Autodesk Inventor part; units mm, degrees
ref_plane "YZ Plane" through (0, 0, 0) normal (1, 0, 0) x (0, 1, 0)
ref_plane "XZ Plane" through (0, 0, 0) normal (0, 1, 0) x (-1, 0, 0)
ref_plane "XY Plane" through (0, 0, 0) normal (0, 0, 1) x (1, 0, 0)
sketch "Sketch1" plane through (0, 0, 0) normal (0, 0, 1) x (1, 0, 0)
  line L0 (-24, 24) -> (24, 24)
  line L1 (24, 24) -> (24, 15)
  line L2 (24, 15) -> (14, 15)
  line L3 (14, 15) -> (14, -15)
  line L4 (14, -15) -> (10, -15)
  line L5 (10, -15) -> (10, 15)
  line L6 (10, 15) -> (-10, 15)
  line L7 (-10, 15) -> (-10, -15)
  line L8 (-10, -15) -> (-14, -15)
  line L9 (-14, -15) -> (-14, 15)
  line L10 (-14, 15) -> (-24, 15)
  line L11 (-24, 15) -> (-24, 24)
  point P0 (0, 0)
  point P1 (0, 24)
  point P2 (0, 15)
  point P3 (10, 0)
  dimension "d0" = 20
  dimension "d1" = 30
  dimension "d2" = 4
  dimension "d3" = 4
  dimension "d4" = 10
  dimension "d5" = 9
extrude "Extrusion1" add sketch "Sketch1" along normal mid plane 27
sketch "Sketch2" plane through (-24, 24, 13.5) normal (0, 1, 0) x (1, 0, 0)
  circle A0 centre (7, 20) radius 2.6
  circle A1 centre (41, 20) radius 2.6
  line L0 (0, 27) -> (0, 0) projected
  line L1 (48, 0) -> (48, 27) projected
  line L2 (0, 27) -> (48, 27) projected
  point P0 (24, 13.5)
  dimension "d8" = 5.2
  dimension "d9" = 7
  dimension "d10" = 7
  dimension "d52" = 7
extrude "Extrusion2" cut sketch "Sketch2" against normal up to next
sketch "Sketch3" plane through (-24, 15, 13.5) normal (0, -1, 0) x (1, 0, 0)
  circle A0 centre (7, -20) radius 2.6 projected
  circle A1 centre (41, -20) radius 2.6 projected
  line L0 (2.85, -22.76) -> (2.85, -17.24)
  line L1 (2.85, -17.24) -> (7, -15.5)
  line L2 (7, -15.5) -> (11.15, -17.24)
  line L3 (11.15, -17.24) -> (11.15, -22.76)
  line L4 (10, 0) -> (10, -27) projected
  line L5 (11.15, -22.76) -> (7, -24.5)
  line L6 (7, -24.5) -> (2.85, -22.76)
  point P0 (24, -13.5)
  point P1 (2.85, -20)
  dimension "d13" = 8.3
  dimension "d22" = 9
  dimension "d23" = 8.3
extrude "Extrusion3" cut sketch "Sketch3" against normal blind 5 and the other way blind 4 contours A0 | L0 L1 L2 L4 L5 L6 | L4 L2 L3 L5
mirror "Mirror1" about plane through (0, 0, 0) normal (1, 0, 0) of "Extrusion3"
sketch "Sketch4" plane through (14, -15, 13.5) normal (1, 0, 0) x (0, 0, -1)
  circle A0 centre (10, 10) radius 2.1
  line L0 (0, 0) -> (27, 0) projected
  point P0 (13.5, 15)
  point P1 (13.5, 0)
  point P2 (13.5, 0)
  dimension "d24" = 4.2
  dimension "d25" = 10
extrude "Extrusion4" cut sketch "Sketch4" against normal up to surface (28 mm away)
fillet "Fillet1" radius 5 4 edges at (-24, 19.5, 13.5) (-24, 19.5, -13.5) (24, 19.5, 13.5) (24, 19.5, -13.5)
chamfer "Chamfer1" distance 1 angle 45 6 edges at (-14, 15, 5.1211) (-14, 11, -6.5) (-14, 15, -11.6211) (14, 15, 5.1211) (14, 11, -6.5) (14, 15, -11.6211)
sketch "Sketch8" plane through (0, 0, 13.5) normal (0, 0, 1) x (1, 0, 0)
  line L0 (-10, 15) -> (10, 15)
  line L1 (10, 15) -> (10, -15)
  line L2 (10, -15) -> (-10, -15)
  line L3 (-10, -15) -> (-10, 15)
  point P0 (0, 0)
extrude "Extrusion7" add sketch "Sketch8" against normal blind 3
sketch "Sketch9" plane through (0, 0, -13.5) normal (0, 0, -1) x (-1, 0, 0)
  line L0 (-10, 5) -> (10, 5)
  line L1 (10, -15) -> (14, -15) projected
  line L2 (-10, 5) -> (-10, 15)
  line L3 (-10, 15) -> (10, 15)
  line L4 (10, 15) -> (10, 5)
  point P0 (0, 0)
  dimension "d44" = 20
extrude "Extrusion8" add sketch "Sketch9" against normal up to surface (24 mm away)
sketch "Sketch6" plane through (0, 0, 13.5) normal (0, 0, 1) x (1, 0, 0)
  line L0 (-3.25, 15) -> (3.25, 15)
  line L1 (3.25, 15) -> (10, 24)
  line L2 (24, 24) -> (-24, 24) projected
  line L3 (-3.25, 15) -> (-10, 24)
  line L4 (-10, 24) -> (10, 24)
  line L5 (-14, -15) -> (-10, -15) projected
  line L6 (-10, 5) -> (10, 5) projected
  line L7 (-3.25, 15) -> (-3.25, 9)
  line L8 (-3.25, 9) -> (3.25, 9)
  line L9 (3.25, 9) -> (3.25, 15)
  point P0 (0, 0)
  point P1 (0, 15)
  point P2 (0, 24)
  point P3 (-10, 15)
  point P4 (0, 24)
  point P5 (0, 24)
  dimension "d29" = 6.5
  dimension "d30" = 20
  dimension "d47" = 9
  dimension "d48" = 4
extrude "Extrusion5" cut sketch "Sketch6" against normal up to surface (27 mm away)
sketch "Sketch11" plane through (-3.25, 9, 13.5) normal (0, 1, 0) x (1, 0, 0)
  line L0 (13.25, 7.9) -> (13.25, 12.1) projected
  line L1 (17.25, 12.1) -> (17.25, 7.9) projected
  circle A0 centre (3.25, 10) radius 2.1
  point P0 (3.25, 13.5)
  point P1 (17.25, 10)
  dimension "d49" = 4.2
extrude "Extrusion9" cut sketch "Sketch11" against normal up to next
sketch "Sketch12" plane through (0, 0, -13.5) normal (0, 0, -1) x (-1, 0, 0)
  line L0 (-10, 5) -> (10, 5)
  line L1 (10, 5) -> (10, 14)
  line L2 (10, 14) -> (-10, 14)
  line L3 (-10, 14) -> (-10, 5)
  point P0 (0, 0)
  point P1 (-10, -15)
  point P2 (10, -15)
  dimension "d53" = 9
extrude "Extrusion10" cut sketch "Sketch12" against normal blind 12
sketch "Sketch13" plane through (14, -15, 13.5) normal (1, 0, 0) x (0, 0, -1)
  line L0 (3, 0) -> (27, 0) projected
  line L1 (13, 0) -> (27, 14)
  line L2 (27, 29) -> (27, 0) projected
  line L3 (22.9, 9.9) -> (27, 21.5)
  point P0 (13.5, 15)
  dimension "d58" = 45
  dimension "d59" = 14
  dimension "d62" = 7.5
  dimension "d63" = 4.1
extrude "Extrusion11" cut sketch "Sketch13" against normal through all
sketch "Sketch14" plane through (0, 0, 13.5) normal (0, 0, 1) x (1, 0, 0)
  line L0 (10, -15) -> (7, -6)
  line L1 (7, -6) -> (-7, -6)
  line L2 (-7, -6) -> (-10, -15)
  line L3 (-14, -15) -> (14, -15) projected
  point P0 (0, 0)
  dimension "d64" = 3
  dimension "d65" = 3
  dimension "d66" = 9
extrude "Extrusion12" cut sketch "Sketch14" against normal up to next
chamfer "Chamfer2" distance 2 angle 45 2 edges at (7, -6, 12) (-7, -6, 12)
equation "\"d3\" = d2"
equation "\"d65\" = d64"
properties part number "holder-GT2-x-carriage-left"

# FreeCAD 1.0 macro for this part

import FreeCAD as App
import Part
import Sketcher
Q = App.Units.Quantity


def edges_at(feature, points):
    """Names of the edges that pass closest to the given points."""
    edges = feature.Shape.Edges
    near = lambda p: min(range(len(edges)), key=lambda i: edges[i].distToShape(Part.Vertex(*p))[0])
    return sorted({f"Edge{near(p) + 1}" for p in points})


def add_polygon(sketch, points):
    """Adds a closed chain of lines whose ends are joined by coincident constraints."""
    first, n = sketch.GeometryCount, len(points)
    for a, b in zip(points, points[1:] + points[:1]):
        sketch.addGeometry(Part.LineSegment(App.Vector(*a, 0), App.Vector(*b, 0)), False)
    for i in range(n):
        sketch.addConstraint(Sketcher.Constraint("Coincident", first + i, 2, first + (i + 1) % n, 1))

doc = App.newDocument("Part")
params = doc.addObject("Spreadsheet::Sheet", "Params")
for row, (alias, value) in enumerate([
    ("sketch1_width", "10 mm"),
    ("sketch1_width2", "4 mm"),
    ("sketch1_width3", "20 mm"),
    ("sketch1_height", "9 mm"),
    ("sketch1_height2", "30 mm"),
    ("pad1_length", "27 mm"),
    ("sketch2_diameter", "5.2 mm"),
    ("sketch3_length", "4.5 mm"),
    ("pocket2_length", "5 mm"),
    ("pocket2_length2", "4 mm"),
    ("sketch4_diameter", "4.2 mm"),
    ("pocket3_length", "28 mm"),
    ("fillet_radius", "5 mm"),
    ("chamfer_size", "1 mm"),
    ("sketch5_width", "20 mm"),
    ("sketch5_height", "30 mm"),
    ("pad2_length", "3 mm"),
    ("sketch6_width", "20 mm"),
    ("sketch6_height", "10 mm"),
    ("pad3_length", "24 mm"),
    ("sketch7_width", "20 mm"),
    ("sketch7_width2", "6.5 mm"),
    ("sketch7_height", "6 mm"),
    ("pocket4_length", "27 mm"),
    ("sketch8_diameter", "4.2 mm"),
    ("sketch9_height", "9 mm"),
    ("sketch9_width", "20 mm"),
    ("pocket6_length", "12 mm"),
    ("sketch10_height", "14 mm"),
    ("sketch10_width", "21.5 mm"),
    ("sketch11_width", "20 mm"),
    ("chamfer2_size", "2 mm"),
], start=1):
    params.set(f"A{row}", alias)
    params.set(f"B{row}", "=" + value)
    params.setAlias(f"B{row}", alias)

body = doc.addObject("PartDesign::Body", "Body")

sketch1 = doc.addObject("Sketcher::SketchObject", "Sketch")
body.addObject(sketch1)
sketch1.AttachmentSupport = (doc.XY_Plane, [""])
sketch1.MapMode = "FlatFace"
add_polygon(sketch1, [(24, 24), (-24, 24), (-24, 15), (-14, 15), (-14, -15), (-10, -15), (-10, 15), (10, 15), (10, -15), (14, -15), (14, 15), (24, 15)])
sketch1.addConstraint(Sketcher.Constraint("Horizontal", 0))
sketch1.addConstraint(Sketcher.Constraint("Vertical", 1))
sketch1.addConstraint(Sketcher.Constraint("Horizontal", 2))
sketch1.addConstraint(Sketcher.Constraint("Vertical", 3))
sketch1.addConstraint(Sketcher.Constraint("Horizontal", 4))
sketch1.addConstraint(Sketcher.Constraint("Vertical", 5))
sketch1.addConstraint(Sketcher.Constraint("Horizontal", 6))
sketch1.addConstraint(Sketcher.Constraint("Vertical", 7))
sketch1.addConstraint(Sketcher.Constraint("Horizontal", 8))
sketch1.addConstraint(Sketcher.Constraint("Vertical", 9))
sketch1.addConstraint(Sketcher.Constraint("Horizontal", 10))
sketch1.addConstraint(Sketcher.Constraint("Vertical", 11))
sketch1.addConstraint(Sketcher.Constraint("Symmetric", 4, 2, 6, 2, -1, 1))
sketch1.addConstraint(Sketcher.Constraint("Symmetric", 2, 2, 8, 2, -1, 1))
sketch1.addConstraint(Sketcher.Constraint("Symmetric", 1, 2, 10, 2, -2))
sketch1.addConstraint(Sketcher.Constraint("Horizontal", 2, 2, 5, 2))
sketch1.addConstraint(Sketcher.Constraint("DistanceX", 2, 1, 2, 2, Q("10 mm")))
sketch1.addConstraint(Sketcher.Constraint("DistanceX", 4, 1, 4, 2, Q("4 mm")))
sketch1.addConstraint(Sketcher.Constraint("DistanceX", 6, 1, 6, 2, Q("20 mm")))
sketch1.addConstraint(Sketcher.Constraint("DistanceY", 1, 2, 1, 1, Q("9 mm")))
sketch1.addConstraint(Sketcher.Constraint("DistanceY", 3, 2, 3, 1, Q("30 mm")))
sketch1.setExpression("Constraints[28]", "Params.sketch1_width")
sketch1.setExpression("Constraints[29]", "Params.sketch1_width2")
sketch1.setExpression("Constraints[30]", "Params.sketch1_width3")
sketch1.setExpression("Constraints[31]", "Params.sketch1_height")
sketch1.setExpression("Constraints[32]", "Params.sketch1_height2")
pad1 = doc.addObject("PartDesign::Pad", "Pad")
body.addObject(pad1)
pad1.Profile = sketch1
pad1.setExpression("Length", "Params.pad1_length")
pad1.Midplane = True

sketch2 = doc.addObject("Sketcher::SketchObject", "Sketch001")
body.addObject(sketch2)
sketch2.AttachmentSupport = (doc.XZ_Plane, [""])
sketch2.MapMode = "FlatFace"
sketch2.AttachmentOffset = App.Placement(App.Vector(0, 0, -24), App.Rotation())
sketch2.addGeometry(Part.Circle(App.Vector(-17, -6.5, 0), App.Vector(0, 0, 1), 2.6), False)
sketch2.addGeometry(Part.Circle(App.Vector(17, -6.5, 0), App.Vector(0, 0, 1), 2.6), False)
sketch2.addConstraint(Sketcher.Constraint("Equal", 0, 1))
sketch2.addConstraint(Sketcher.Constraint("Symmetric", 0, 3, 1, 3, -2))
sketch2.addConstraint(Sketcher.Constraint("Diameter", 0, Q("5.2 mm")))
sketch2.addConstraint(Sketcher.Constraint("DistanceX", 0, 3, -1, 1, Q("17 mm")))
sketch2.addConstraint(Sketcher.Constraint("DistanceY", 0, 3, -1, 1, Q("6.5 mm")))
sketch2.setExpression("Constraints[2]", "Params.sketch2_diameter")
pocket1 = doc.addObject("PartDesign::Pocket", "Pocket")
body.addObject(pocket1)
pocket1.Profile = sketch2
pocket1.Type = "UpToFirst"
pocket1.Reversed = True

sketch3 = doc.addObject("Sketcher::SketchObject", "Sketch002")
body.addObject(sketch3)
sketch3.AttachmentSupport = (doc.XZ_Plane, [""])
sketch3.MapMode = "FlatFace"
sketch3.AttachmentOffset = App.Placement(App.Vector(0, 0, -15), App.Rotation())
add_polygon(sketch3, [(-21.1, -3.7), (-21.1, -9.3), (-17, -11), (-12.8, -9.3), (-12.8, -3.7), (-17, -2)])
sketch3.addConstraint(Sketcher.Constraint("Vertical", 0))
sketch3.addConstraint(Sketcher.Constraint("Vertical", 3))
sketch3.addConstraint(Sketcher.Constraint("Parallel", 1, 4))
sketch3.addConstraint(Sketcher.Constraint("Parallel", 2, 5))
sketch3.addConstraint(Sketcher.Constraint("Horizontal", 0, 2, 2, 2))
sketch3.addConstraint(Sketcher.Constraint("Horizontal", 3, 2, 5, 2))
sketch3.addConstraint(Sketcher.Constraint("Vertical", 1, 2, 4, 2))
sketch3.addConstraint(Sketcher.Constraint("DistanceY", 1, 2, 4, 2, Q("9 mm")))
sketch3.addConstraint(Sketcher.Constraint("DistanceX", 0, 2, 2, 2, Q("8.3 mm")))
sketch3.addConstraint(Sketcher.Constraint("DistanceX", 1, 2, -1, 1, Q("17 mm")))
sketch3.addConstraint(Sketcher.Constraint("DistanceY", 1, 2, -1, 1, Q("11 mm")))
sketch3.addConstraint(Sketcher.Constraint("Distance", 1, Q("4.5 mm")))
sketch3.setExpression("Constraints[17]", "Params.sketch3_length")
pocket2 = doc.addObject("PartDesign::Pocket", "Pocket001")
body.addObject(pocket2)
pocket2.Profile = sketch3
pocket2.Type = "TwoLengths"
pocket2.setExpression("Length", "Params.pocket2_length")
pocket2.setExpression("Length2", "Params.pocket2_length2")
doc.recompute()

mirrored = doc.addObject("PartDesign::Mirrored", "Mirrored")
body.addObject(mirrored)
mirrored.Originals = [pocket2]
mirrored.MirrorPlane = (doc.YZ_Plane, [""])
body.Tip = mirrored

sketch4 = doc.addObject("Sketcher::SketchObject", "Sketch003")
body.addObject(sketch4)
sketch4.AttachmentSupport = (doc.YZ_Plane, [""])
sketch4.MapMode = "FlatFace"
sketch4.AttachmentOffset = App.Placement(App.Vector(0, 0, 14), App.Rotation())
sketch4.addGeometry(Part.Circle(App.Vector(-5, 3.5, 0), App.Vector(0, 0, 1), 2.1), False)
sketch4.addConstraint(Sketcher.Constraint("Diameter", 0, Q("4.2 mm")))
sketch4.addConstraint(Sketcher.Constraint("DistanceX", 0, 3, -1, 1, Q("5 mm")))
sketch4.addConstraint(Sketcher.Constraint("DistanceY", -1, 1, 0, 3, Q("3.5 mm")))
sketch4.setExpression("Constraints[0]", "Params.sketch4_diameter")
pocket3 = doc.addObject("PartDesign::Pocket", "Pocket002")
body.addObject(pocket3)
pocket3.Profile = sketch4
pocket3.setExpression("Length", "Params.pocket3_length")
doc.recompute()

fillet = doc.addObject("PartDesign::Fillet", "Fillet")
body.addObject(fillet)
fillet.Base = (pocket3, edges_at(pocket3, [
    (-24, 19.5, 13.5),
    (-24, 19.5, -13.5),
    (24, 19.5, 13.5),
    (24, 19.5, -13.5),
]))
fillet.setExpression("Radius", "Params.fillet_radius")
doc.recompute()

chamfer = doc.addObject("PartDesign::Chamfer", "Chamfer")
body.addObject(chamfer)
chamfer.Base = (fillet, edges_at(fillet, [
    (-14, 15, 5.121),
    (-14, 11, -6.5),
    (-14, 15, -11.621),
    (14, 15, 5.121),
    (14, 11, -6.5),
    (14, 15, -11.621),
]))
chamfer.setExpression("Size", "Params.chamfer_size")

sketch5 = doc.addObject("Sketcher::SketchObject", "Sketch004")
body.addObject(sketch5)
sketch5.AttachmentSupport = (doc.XY_Plane, [""])
sketch5.MapMode = "FlatFace"
sketch5.AttachmentOffset = App.Placement(App.Vector(0, 0, 13.5), App.Rotation())
add_polygon(sketch5, [(10, 15), (-10, 15), (-10, -15), (10, -15)])
sketch5.addConstraint(Sketcher.Constraint("Horizontal", 0))
sketch5.addConstraint(Sketcher.Constraint("Vertical", 1))
sketch5.addConstraint(Sketcher.Constraint("Horizontal", 2))
sketch5.addConstraint(Sketcher.Constraint("Vertical", 3))
sketch5.addConstraint(Sketcher.Constraint("Symmetric", 0, 2, 2, 2, -1, 1))
sketch5.addConstraint(Sketcher.Constraint("DistanceX", 0, 2, 0, 1, Q("20 mm")))
sketch5.addConstraint(Sketcher.Constraint("DistanceY", 1, 2, 1, 1, Q("30 mm")))
sketch5.setExpression("Constraints[9]", "Params.sketch5_width")
sketch5.setExpression("Constraints[10]", "Params.sketch5_height")
pad2 = doc.addObject("PartDesign::Pad", "Pad001")
body.addObject(pad2)
pad2.Profile = sketch5
pad2.setExpression("Length", "Params.pad2_length")
pad2.Reversed = True

sketch6 = doc.addObject("Sketcher::SketchObject", "Sketch005")
body.addObject(sketch6)
sketch6.AttachmentSupport = (doc.XY_Plane, [""])
sketch6.MapMode = "FlatFace"
sketch6.AttachmentOffset = App.Placement(App.Vector(0, 0, -13.5), App.Rotation())
add_polygon(sketch6, [(10, 15), (10, 5), (-10, 5), (-10, 15)])
sketch6.addConstraint(Sketcher.Constraint("Vertical", 0))
sketch6.addConstraint(Sketcher.Constraint("Horizontal", 1))
sketch6.addConstraint(Sketcher.Constraint("Vertical", 2))
sketch6.addConstraint(Sketcher.Constraint("Horizontal", 3))
sketch6.addConstraint(Sketcher.Constraint("DistanceX", 1, 2, 1, 1, Q("20 mm")))
sketch6.addConstraint(Sketcher.Constraint("DistanceY", 0, 2, 0, 1, Q("10 mm")))
sketch6.addConstraint(Sketcher.Constraint("DistanceX", -1, 1, 0, 2, Q("10 mm")))
sketch6.addConstraint(Sketcher.Constraint("DistanceY", -1, 1, 0, 2, Q("5 mm")))
sketch6.setExpression("Constraints[8]", "Params.sketch6_width")
sketch6.setExpression("Constraints[9]", "Params.sketch6_height")
pad3 = doc.addObject("PartDesign::Pad", "Pad002")
body.addObject(pad3)
pad3.Profile = sketch6
pad3.setExpression("Length", "Params.pad3_length")

sketch7 = doc.addObject("Sketcher::SketchObject", "Sketch006")
body.addObject(sketch7)
sketch7.AttachmentSupport = (doc.XY_Plane, [""])
sketch7.MapMode = "FlatFace"
sketch7.AttachmentOffset = App.Placement(App.Vector(0, 0, 13.5), App.Rotation())
add_polygon(sketch7, [(-10, 24), (-3, 15), (-3, 9), (3, 9), (3, 15), (10, 24)])
sketch7.addConstraint(Sketcher.Constraint("Vertical", 1))
sketch7.addConstraint(Sketcher.Constraint("Horizontal", 2))
sketch7.addConstraint(Sketcher.Constraint("Vertical", 3))
sketch7.addConstraint(Sketcher.Constraint("Horizontal", 5))
sketch7.addConstraint(Sketcher.Constraint("Symmetric", 0, 2, 3, 2, -2))
sketch7.addConstraint(Sketcher.Constraint("Equal", 0, 4))
sketch7.addConstraint(Sketcher.Constraint("DistanceX", 5, 2, 5, 1, Q("20 mm")))
sketch7.addConstraint(Sketcher.Constraint("DistanceX", 2, 1, 2, 2, Q("6.5 mm")))
sketch7.addConstraint(Sketcher.Constraint("DistanceY", -1, 1, 1, 2, Q("9 mm")))
sketch7.addConstraint(Sketcher.Constraint("DistanceY", 3, 2, 4, 2, Q("9 mm")))
sketch7.addConstraint(Sketcher.Constraint("DistanceY", 1, 2, 1, 1, Q("6 mm")))
sketch7.setExpression("Constraints[12]", "Params.sketch7_width")
sketch7.setExpression("Constraints[13]", "Params.sketch7_width2")
sketch7.setExpression("Constraints[16]", "Params.sketch7_height")
pocket4 = doc.addObject("PartDesign::Pocket", "Pocket003")
body.addObject(pocket4)
pocket4.Profile = sketch7
pocket4.setExpression("Length", "Params.pocket4_length")

sketch8 = doc.addObject("Sketcher::SketchObject", "Sketch007")
body.addObject(sketch8)
sketch8.AttachmentSupport = (doc.XZ_Plane, [""])
sketch8.MapMode = "FlatFace"
sketch8.AttachmentOffset = App.Placement(App.Vector(0, 0, -9), App.Rotation())
sketch8.addGeometry(Part.Circle(App.Vector(0, 3.5, 0), App.Vector(0, 0, 1), 2.1), False)
sketch8.addConstraint(Sketcher.Constraint("PointOnObject", 0, 3, -2))
sketch8.addConstraint(Sketcher.Constraint("Diameter", 0, Q("4.2 mm")))
sketch8.addConstraint(Sketcher.Constraint("DistanceY", -1, 1, 0, 3, Q("3.5 mm")))
sketch8.setExpression("Constraints[1]", "Params.sketch8_diameter")
pocket5 = doc.addObject("PartDesign::Pocket", "Pocket004")
body.addObject(pocket5)
pocket5.Profile = sketch8
pocket5.Type = "UpToFirst"
pocket5.Reversed = True

sketch9 = doc.addObject("Sketcher::SketchObject", "Sketch008")
body.addObject(sketch9)
sketch9.AttachmentSupport = (doc.XY_Plane, [""])
sketch9.MapMode = "FlatFace"
sketch9.AttachmentOffset = App.Placement(App.Vector(0, 0, -13.5), App.Rotation())
add_polygon(sketch9, [(10, 14), (10, 5), (-10, 5), (-10, 14)])
sketch9.addConstraint(Sketcher.Constraint("Vertical", 0))
sketch9.addConstraint(Sketcher.Constraint("Horizontal", 1))
sketch9.addConstraint(Sketcher.Constraint("Vertical", 2))
sketch9.addConstraint(Sketcher.Constraint("Horizontal", 3))
sketch9.addConstraint(Sketcher.Constraint("DistanceY", 0, 2, 0, 1, Q("9 mm")))
sketch9.addConstraint(Sketcher.Constraint("DistanceX", 1, 2, 1, 1, Q("20 mm")))
sketch9.addConstraint(Sketcher.Constraint("DistanceX", -1, 1, 0, 2, Q("10 mm")))
sketch9.addConstraint(Sketcher.Constraint("DistanceY", -1, 1, 0, 2, Q("5 mm")))
sketch9.setExpression("Constraints[8]", "Params.sketch9_height")
sketch9.setExpression("Constraints[9]", "Params.sketch9_width")
pocket6 = doc.addObject("PartDesign::Pocket", "Pocket005")
body.addObject(pocket6)
pocket6.Profile = sketch9
pocket6.setExpression("Length", "Params.pocket6_length")
pocket6.Reversed = True

sketch10 = doc.addObject("Sketcher::SketchObject", "Sketch009")
body.addObject(sketch10)
sketch10.AttachmentSupport = (doc.YZ_Plane, [""])
sketch10.MapMode = "FlatFace"
sketch10.AttachmentOffset = App.Placement(App.Vector(0, 0, 14), App.Rotation())
add_polygon(sketch10, [(-5, -9), (-15, 0), (-15, -14), (6, -14)])
sketch10.addConstraint(Sketcher.Constraint("Vertical", 1))
sketch10.addConstraint(Sketcher.Constraint("Horizontal", 2))
sketch10.addConstraint(Sketcher.Constraint("DistanceY", 1, 2, 1, 1, Q("14 mm")))
sketch10.addConstraint(Sketcher.Constraint("DistanceY", 1, 2, 3, 2, Q("4.1 mm")))
sketch10.addConstraint(Sketcher.Constraint("Angle", 0, Q("135 deg")))
sketch10.addConstraint(Sketcher.Constraint("DistanceX", 2, 1, 2, 2, Q("21.5 mm")))
sketch10.addConstraint(Sketcher.Constraint("DistanceX", 0, 2, -1, 1, Q("15 mm")))
sketch10.addConstraint(Sketcher.Constraint("DistanceY", -1, 1, 0, 2, Q("0.5 mm")))
sketch10.setExpression("Constraints[6]", "Params.sketch10_height")
sketch10.setExpression("Constraints[9]", "Params.sketch10_width")
pocket7 = doc.addObject("PartDesign::Pocket", "Pocket006")
body.addObject(pocket7)
pocket7.Profile = sketch10
pocket7.Type = "ThroughAll"

sketch11 = doc.addObject("Sketcher::SketchObject", "Sketch010")
body.addObject(sketch11)
sketch11.AttachmentSupport = (doc.XY_Plane, [""])
sketch11.MapMode = "FlatFace"
sketch11.AttachmentOffset = App.Placement(App.Vector(0, 0, 13.5), App.Rotation())
add_polygon(sketch11, [(-10, -15), (10, -15), (7, -6), (-7, -6)])
sketch11.addConstraint(Sketcher.Constraint("Horizontal", 0))
sketch11.addConstraint(Sketcher.Constraint("Horizontal", 2))
sketch11.addConstraint(Sketcher.Constraint("Equal", 1, 3))
sketch11.addConstraint(Sketcher.Constraint("DistanceX", 1, 2, 0, 2, Q("3 mm")))
sketch11.addConstraint(Sketcher.Constraint("DistanceY", 0, 2, 1, 2, Q("9 mm")))
sketch11.addConstraint(Sketcher.Constraint("DistanceX", 0, 1, 0, 2, Q("20 mm")))
sketch11.addConstraint(Sketcher.Constraint("DistanceX", -1, 1, 0, 2, Q("10 mm")))
sketch11.addConstraint(Sketcher.Constraint("DistanceY", 0, 2, -1, 1, Q("15 mm")))
sketch11.setExpression("Constraints[9]", "Params.sketch11_width")
pocket8 = doc.addObject("PartDesign::Pocket", "Pocket007")
body.addObject(pocket8)
pocket8.Profile = sketch11
pocket8.Type = "UpToFirst"
doc.recompute()

chamfer2 = doc.addObject("PartDesign::Chamfer", "Chamfer001")
body.addObject(chamfer2)
chamfer2.Base = (pocket8, edges_at(pocket8, [(7, -6, 12), (-7, -6, 12)]))
chamfer2.setExpression("Size", "Params.chamfer2_size")

doc.recompute()
